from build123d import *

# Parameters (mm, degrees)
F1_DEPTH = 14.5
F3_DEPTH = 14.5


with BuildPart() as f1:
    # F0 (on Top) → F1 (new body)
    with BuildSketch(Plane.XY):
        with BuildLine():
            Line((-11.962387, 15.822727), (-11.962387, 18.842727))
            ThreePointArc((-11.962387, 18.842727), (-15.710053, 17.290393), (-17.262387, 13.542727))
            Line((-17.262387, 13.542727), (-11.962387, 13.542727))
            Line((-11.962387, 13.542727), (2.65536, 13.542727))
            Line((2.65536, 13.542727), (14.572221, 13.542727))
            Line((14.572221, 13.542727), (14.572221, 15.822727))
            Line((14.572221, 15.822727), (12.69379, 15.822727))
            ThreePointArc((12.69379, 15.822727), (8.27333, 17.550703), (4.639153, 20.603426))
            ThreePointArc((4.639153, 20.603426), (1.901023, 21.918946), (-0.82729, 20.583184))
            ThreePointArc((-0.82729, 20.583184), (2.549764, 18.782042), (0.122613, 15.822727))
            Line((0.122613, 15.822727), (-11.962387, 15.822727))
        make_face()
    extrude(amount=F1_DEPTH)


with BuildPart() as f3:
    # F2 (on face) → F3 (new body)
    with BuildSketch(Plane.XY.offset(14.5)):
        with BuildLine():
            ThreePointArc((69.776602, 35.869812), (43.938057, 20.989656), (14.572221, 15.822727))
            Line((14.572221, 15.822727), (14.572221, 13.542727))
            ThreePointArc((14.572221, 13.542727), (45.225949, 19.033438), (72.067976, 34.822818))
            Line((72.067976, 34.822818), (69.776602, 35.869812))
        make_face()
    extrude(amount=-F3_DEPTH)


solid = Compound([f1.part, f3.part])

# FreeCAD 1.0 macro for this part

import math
import FreeCAD as App
import Part
import Sketcher
from FreeCAD import Vector

doc = App.newDocument("Part")
body = doc.addObject("PartDesign::Body", "Body")

# Sketch on XY plane
sketch1 = body.newObject("Sketcher::SketchObject", "Sketch")
sketch1.AttachmentSupport = (doc.getObject("XY_Plane"), [""])
sketch1.MapMode = "FlatFace"
sketch1.addGeometry([
    Part.LineSegment(Vector(-11.962387, 15.822727, 0), Vector(-11.962387, 18.842727, 0)),  # 0
    Part.ArcOfCircle(Part.Circle(Vector(-11.962387, 13.542727, 0), Vector(0, 0, 1), 5.3), math.radians(89.999998), math.radians(180.000002)),  # 1
    Part.LineSegment(Vector(-17.262387, 13.542727, 0), Vector(14.572221, 13.542727, 0)),  # 2
    Part.LineSegment(Vector(14.572221, 13.542727, 0), Vector(14.572221, 15.822727, 0)),  # 3
    Part.LineSegment(Vector(14.572221, 15.822727, 0), Vector(12.69379, 15.822727, 0)),  # 4
    Part.ArcOfCircle(Part.Circle(Vector(15.736719, 30.1252, 0), Vector(0, 0, 1), 14.622591), math.radians(-139.37022), math.radians(-102.010903)),  # 5
    Part.ArcOfCircle(Part.Circle(Vector(1.913911, 18.438432, 0), Vector(0, 0, 1), 3.480538), math.radians(38.464423), math.radians(141.959903)),  # 6
    Part.ArcOfCircle(Part.Circle(Vector(0.122612, 18.297727, 0), Vector(0, 0, 1), 2.475), math.radians(-89.999982), math.radians(112.56919)),  # 7
    Part.LineSegment(Vector(0.122613, 15.822727, 0), Vector(-11.962387, 15.822727, 0)),  # 8
], False)
sketch1.addConstraint([
    Sketcher.Constraint("Coincident", 0, 2, 1, 1),
    Sketcher.Constraint("Coincident", 1, 2, 2, 1),
    Sketcher.Constraint("Coincident", 2, 2, 3, 1),
    Sketcher.Constraint("Coincident", 3, 2, 4, 1),
    Sketcher.Constraint("Coincident", 4, 2, 5, 2),
    Sketcher.Constraint("Coincident", 5, 1, 6, 1),
    Sketcher.Constraint("Coincident", 6, 2, 7, 2),
    Sketcher.Constraint("Tangent", 7, 1, 8, 1),
    Sketcher.Constraint("Coincident", 8, 2, 0, 1),
    Sketcher.Constraint("Vertical", 0),
    Sketcher.Constraint("Horizontal", 2),
    Sketcher.Constraint("Vertical", 3),
    Sketcher.Constraint("Horizontal", 4),
    Sketcher.Constraint("Horizontal", 8),
    Sketcher.Constraint("Horizontal", 4, 2, 7, 1),
    Sketcher.Constraint("Vertical", 1, 3, 0, 2),
    Sketcher.Constraint("Radius", 1, 5.3),
    Sketcher.Constraint("Radius", 7, 2.475),
    Sketcher.Constraint("DistanceY", 0, 1, 0, 2, 3.02),
    Sketcher.Constraint("DistanceY", 3, 1, 3, 2, 2.28),
    Sketcher.Constraint("DistanceX", 8, 2, 8, 1, 12.085),
    Sketcher.Constraint("Radius", 5, 14.622591),
    Sketcher.Constraint("Radius", 6, 3.480538),
    Sketcher.Constraint("DistanceX", 2, 1, 2, 2, 31.834608),
    Sketcher.Constraint("DistanceX", 4, 2, 4, 1, 1.878431),
    Sketcher.Constraint("DistanceY", -1, 1, 5, 3, 30.1252),
    Sketcher.Constraint("DistanceX", 1, 3, 6, 3, 13.876298),
    Sketcher.Constraint("DistanceX", 2, 2, 5, 3, 1.164498),
    Sketcher.Constraint("DistanceY", 7, 3, 5, 1, 2.305699),
    Sketcher.Constraint("DistanceX", -1, 1, 5, 3, 15.736719),
])
pad1 = body.newObject("PartDesign::Pad", "Pad")
pad1.Profile = sketch1
pad1.Length = 14.5
body2 = doc.addObject("PartDesign::Body", "Body001")

# Sketch on XY plane
sketch2 = body2.newObject("Sketcher::SketchObject", "Sketch001")
sketch2.AttachmentSupport = (doc.getObject("XY_Plane001"), [""])
sketch2.MapMode = "FlatFace"
sketch2.AttachmentOffset = App.Placement(Vector(0, 0, 14.5), App.Rotation())
sketch2.addGeometry([
    Part.ArcOfCircle(Part.Circle(Vector(14.572217, 101.855428, 0), Vector(0, 0, 1), 86.032701), math.radians(-89.999997), math.radians(-50.083729)),
    Part.LineSegment(Vector(14.572221, 15.822727, 0), Vector(14.572221, 13.542727, 0)),
    Part.ArcOfCircle(Part.Circle(Vector(14.572222, 101.855412, 0), Vector(0, 0, 1), 88.312685), math.radians(-90.000001), math.radians(-49.379374)),
    Part.LineSegment(Vector(72.067976, 34.822818, 0), Vector(69.776602, 35.869812, 0)),
], False)
sketch2.addConstraint([
    Sketcher.Constraint("Coincident", 0, 1, 1, 1),
    Sketcher.Constraint("Coincident", 1, 2, 2, 1),
    Sketcher.Constraint("Coincident", 2, 2, 3, 1),
    Sketcher.Constraint("Coincident", 3, 2, 0, 2),
    Sketcher.Constraint("Vertical", 1),
    Sketcher.Constraint("Vertical", 2, 3, 0, 1),
    Sketcher.Constraint("DistanceY", 1, 2, 1, 1, 2.28),
    Sketcher.Constraint("Radius", 0, 86.032701),
    Sketcher.Constraint("Radius", 2, 88.312685),
    Sketcher.Constraint("DistanceX", -1, 1, 3, 2, 69.776602),
    Sketcher.Constraint("DistanceY", 3, 2, 2, 3, 65.9856),
    Sketcher.Constraint("DistanceY", -1, 1, 0, 3, 101.855428),
    Sketcher.Constraint("DistanceX", -1, 1, 0, 1, 14.572221),
    Sketcher.Constraint("DistanceY", -1, 1, 2, 2, 34.822818),
])
pad2 = body2.newObject("PartDesign::Pad", "Pad001")
pad2.Profile = sketch2
pad2.Length = 14.5
pad2.Reversed = True

doc.recompute()
